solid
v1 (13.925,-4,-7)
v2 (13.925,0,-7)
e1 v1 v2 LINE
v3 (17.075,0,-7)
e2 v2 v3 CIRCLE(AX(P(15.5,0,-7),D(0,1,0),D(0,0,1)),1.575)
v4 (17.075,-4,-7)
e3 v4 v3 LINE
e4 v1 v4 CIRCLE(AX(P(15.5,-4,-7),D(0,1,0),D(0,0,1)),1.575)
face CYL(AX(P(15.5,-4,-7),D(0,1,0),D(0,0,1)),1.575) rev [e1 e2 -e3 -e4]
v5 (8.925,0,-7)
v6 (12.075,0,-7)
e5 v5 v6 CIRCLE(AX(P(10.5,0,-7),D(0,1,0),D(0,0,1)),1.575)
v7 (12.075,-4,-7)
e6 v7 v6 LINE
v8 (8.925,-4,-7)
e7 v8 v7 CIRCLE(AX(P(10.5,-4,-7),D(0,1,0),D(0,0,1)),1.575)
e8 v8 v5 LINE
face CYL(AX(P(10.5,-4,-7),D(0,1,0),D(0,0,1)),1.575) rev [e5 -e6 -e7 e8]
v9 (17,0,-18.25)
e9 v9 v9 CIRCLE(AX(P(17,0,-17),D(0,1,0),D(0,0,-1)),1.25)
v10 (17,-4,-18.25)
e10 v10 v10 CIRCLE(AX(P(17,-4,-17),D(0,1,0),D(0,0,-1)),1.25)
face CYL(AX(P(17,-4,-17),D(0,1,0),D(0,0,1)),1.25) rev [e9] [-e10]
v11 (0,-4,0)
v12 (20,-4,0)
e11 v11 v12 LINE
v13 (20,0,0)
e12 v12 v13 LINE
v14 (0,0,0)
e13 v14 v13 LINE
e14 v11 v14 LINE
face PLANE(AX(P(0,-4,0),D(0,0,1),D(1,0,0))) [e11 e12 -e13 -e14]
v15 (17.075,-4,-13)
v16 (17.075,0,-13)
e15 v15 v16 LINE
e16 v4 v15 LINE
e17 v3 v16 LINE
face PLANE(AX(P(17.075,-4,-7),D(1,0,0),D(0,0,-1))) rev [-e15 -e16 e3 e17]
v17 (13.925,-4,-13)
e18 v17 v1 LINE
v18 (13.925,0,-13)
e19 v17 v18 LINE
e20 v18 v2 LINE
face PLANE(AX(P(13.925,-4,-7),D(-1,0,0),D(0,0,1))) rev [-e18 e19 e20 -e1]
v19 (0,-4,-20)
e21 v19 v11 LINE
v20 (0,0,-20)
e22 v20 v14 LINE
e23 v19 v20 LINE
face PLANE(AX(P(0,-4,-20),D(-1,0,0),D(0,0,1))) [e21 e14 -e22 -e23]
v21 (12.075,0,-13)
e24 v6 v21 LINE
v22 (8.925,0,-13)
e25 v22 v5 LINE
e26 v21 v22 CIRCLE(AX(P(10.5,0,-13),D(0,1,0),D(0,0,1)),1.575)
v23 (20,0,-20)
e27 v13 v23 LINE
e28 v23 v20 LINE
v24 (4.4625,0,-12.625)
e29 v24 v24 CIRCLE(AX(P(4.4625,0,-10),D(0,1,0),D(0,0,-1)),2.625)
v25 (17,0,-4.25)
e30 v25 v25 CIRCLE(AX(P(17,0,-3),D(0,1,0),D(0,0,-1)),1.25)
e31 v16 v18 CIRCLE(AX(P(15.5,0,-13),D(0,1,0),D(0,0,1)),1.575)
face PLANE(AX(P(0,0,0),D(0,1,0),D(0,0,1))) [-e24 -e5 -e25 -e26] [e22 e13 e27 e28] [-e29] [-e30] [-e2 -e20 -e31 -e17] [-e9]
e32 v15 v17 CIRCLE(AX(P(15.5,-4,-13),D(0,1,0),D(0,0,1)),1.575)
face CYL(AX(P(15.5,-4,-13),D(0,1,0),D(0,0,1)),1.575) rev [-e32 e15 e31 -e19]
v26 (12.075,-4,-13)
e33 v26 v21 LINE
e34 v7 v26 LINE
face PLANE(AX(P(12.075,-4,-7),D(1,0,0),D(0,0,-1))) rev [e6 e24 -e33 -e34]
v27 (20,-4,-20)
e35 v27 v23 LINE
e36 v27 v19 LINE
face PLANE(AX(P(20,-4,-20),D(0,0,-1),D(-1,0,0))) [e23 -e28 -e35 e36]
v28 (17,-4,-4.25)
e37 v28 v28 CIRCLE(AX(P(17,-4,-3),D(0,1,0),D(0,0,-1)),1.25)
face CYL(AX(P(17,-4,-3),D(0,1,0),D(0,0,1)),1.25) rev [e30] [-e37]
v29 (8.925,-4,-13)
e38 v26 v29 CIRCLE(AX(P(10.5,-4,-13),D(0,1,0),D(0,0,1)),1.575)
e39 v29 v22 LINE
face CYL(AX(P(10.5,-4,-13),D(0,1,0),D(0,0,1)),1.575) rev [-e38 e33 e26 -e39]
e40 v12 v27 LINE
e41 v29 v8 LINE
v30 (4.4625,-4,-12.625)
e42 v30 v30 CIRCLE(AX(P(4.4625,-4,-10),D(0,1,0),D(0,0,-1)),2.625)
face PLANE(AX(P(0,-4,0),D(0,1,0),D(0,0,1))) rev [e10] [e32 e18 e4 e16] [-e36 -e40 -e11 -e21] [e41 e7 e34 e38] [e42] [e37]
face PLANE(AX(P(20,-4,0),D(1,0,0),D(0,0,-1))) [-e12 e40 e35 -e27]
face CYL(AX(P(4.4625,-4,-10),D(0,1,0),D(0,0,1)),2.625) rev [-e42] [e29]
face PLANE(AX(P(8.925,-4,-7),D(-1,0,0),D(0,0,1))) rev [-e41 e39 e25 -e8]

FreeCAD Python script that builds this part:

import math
import FreeCAD as App
import Part
import Sketcher
from FreeCAD import Vector
Q = App.Units.Quantity

doc = App.newDocument("Part")
body = doc.addObject("PartDesign::Body", "Body")

# Sketch on XZ plane
sketch1 = body.newObject("Sketcher::SketchObject", "Sketch")
sketch1.AttachmentSupport = (doc.getObject("XZ_Plane"), [""])
sketch1.MapMode = "FlatFace"
sketch1.addGeometry([
    Part.LineSegment(Vector(0, -20, 0), Vector(0, 0, 0)),  # 0
    Part.LineSegment(Vector(0, 0, 0), Vector(20, 0, 0)),  # 1
    Part.LineSegment(Vector(20, 0, 0), Vector(20, -20, 0)),  # 2
    Part.LineSegment(Vector(20, -20, 0), Vector(0, -20, 0)),  # 3
    Part.Circle(Vector(17, -3, 0), Vector(0, 0, 1), 1.25),  # 4
    Part.Circle(Vector(4.4625, -10, 0), Vector(0, 0, 1), 2.625),  # 5
    Part.ArcOfCircle(Part.Circle(Vector(10.5, -7, 0), Vector(0, 0, 1), 1.575), math.radians(0), math.radians(180)),  # 6
    Part.LineSegment(Vector(8.925, -7, 0), Vector(8.925, -13, 0)),  # 7
    Part.ArcOfCircle(Part.Circle(Vector(10.5, -13, 0), Vector(0, 0, 1), 1.575), math.radians(180), math.radians(360)),  # 8
    Part.LineSegment(Vector(12.075, -13, 0), Vector(12.075, -7, 0)),  # 9
    Part.ArcOfCircle(Part.Circle(Vector(15.5, -7, 0), Vector(0, 0, 1), 1.575), math.radians(0), math.radians(180)),  # 10
    Part.LineSegment(Vector(13.925, -7, 0), Vector(13.925, -13, 0)),  # 11
    Part.ArcOfCircle(Part.Circle(Vector(15.5, -13, 0), Vector(0, 0, 1), 1.575), math.radians(180), math.radians(360)),  # 12
    Part.LineSegment(Vector(17.075, -13, 0), Vector(17.075, -7, 0)),  # 13
    Part.Circle(Vector(17, -17, 0), Vector(0, 0, 1), 1.25),  # 14
], False)
sketch1.addConstraint([
    Sketcher.Constraint("Coincident", 0, 2, 1, 1),
    Sketcher.Constraint("Coincident", 1, 2, 2, 1),
    Sketcher.Constraint("Coincident", 2, 2, 3, 1),
    Sketcher.Constraint("Coincident", 3, 2, 0, 1),
    Sketcher.Constraint("Tangent", 6, 2, 7, 1),
    Sketcher.Constraint("Tangent", 7, 2, 8, 1),
    Sketcher.Constraint("Tangent", 8, 2, 9, 1),
    Sketcher.Constraint("Tangent", 9, 2, 6, 1),
    Sketcher.Constraint("Tangent", 10, 2, 11, 1),
    Sketcher.Constraint("Tangent", 11, 2, 12, 1),
    Sketcher.Constraint("Tangent", 12, 2, 13, 1),
    Sketcher.Constraint("Tangent", 13, 2, 10, 1),
    Sketcher.Constraint("Vertical", 0),
    Sketcher.Constraint("Horizontal", 1),
    Sketcher.Constraint("Vertical", 2),
    Sketcher.Constraint("Horizontal", 3),
    Sketcher.Constraint("Vertical", 7),
    Sketcher.Constraint("Vertical", 9),
    Sketcher.Constraint("Vertical", 11),
    Sketcher.Constraint("Vertical", 13),
    Sketcher.Constraint("Coincident", 0, 2, -1, 1),
    Sketcher.Constraint("Equal", 8, 10),
    Sketcher.Constraint("Equal", 4, 14),
    Sketcher.Constraint("Horizontal", 6, 3, 10, 3),
    Sketcher.Constraint("Horizontal", 8, 3, 12, 3),
    Sketcher.Constraint("Vertical", 4, 3, 14, 3),
    Sketcher.Constraint("Equal", 3, 0),
    Sketcher.Constraint("Diameter", 4, Q("2.5 mm")),
    Sketcher.Constraint("Diameter", 5, Q("5.25 mm")),
    Sketcher.Constraint("DistanceX", 1, 1, 1, 2, Q("20 mm")),
    Sketcher.Constraint("DistanceY", 7, 2, 7, 1, Q("6 mm")),
    Sketcher.Constraint("DistanceX", -1, 1, 4, 3, Q("17 mm")),
    Sketcher.Constraint("DistanceY", 4, 3, -1, 1, Q("3 mm")),
    Sketcher.Constraint("DistanceY", 5, 3, -1, 1, Q("10 mm")),
    Sketcher.Constraint("DistanceY", 6, 3, -1, 1, Q("7 mm")),
    Sketcher.Constraint("DistanceY", 14, 3, -1, 1, Q("17 mm")),
    Sketcher.Constraint("Radius", 6, Q("1.575 mm")),
    Sketcher.Constraint("DistanceX", 6, 3, 10, 3, Q("5 mm")),
    Sketcher.Constraint("DistanceX", -1, 1, 6, 3, Q("10.5 mm")),
    Sketcher.Constraint("DistanceX", -1, 1, 5, 3, Q("4.4625 mm")),
])
pad1 = body.newObject("PartDesign::Pad", "Pad")
pad1.Profile = sketch1
pad1.Length = 4

doc.recompute()
